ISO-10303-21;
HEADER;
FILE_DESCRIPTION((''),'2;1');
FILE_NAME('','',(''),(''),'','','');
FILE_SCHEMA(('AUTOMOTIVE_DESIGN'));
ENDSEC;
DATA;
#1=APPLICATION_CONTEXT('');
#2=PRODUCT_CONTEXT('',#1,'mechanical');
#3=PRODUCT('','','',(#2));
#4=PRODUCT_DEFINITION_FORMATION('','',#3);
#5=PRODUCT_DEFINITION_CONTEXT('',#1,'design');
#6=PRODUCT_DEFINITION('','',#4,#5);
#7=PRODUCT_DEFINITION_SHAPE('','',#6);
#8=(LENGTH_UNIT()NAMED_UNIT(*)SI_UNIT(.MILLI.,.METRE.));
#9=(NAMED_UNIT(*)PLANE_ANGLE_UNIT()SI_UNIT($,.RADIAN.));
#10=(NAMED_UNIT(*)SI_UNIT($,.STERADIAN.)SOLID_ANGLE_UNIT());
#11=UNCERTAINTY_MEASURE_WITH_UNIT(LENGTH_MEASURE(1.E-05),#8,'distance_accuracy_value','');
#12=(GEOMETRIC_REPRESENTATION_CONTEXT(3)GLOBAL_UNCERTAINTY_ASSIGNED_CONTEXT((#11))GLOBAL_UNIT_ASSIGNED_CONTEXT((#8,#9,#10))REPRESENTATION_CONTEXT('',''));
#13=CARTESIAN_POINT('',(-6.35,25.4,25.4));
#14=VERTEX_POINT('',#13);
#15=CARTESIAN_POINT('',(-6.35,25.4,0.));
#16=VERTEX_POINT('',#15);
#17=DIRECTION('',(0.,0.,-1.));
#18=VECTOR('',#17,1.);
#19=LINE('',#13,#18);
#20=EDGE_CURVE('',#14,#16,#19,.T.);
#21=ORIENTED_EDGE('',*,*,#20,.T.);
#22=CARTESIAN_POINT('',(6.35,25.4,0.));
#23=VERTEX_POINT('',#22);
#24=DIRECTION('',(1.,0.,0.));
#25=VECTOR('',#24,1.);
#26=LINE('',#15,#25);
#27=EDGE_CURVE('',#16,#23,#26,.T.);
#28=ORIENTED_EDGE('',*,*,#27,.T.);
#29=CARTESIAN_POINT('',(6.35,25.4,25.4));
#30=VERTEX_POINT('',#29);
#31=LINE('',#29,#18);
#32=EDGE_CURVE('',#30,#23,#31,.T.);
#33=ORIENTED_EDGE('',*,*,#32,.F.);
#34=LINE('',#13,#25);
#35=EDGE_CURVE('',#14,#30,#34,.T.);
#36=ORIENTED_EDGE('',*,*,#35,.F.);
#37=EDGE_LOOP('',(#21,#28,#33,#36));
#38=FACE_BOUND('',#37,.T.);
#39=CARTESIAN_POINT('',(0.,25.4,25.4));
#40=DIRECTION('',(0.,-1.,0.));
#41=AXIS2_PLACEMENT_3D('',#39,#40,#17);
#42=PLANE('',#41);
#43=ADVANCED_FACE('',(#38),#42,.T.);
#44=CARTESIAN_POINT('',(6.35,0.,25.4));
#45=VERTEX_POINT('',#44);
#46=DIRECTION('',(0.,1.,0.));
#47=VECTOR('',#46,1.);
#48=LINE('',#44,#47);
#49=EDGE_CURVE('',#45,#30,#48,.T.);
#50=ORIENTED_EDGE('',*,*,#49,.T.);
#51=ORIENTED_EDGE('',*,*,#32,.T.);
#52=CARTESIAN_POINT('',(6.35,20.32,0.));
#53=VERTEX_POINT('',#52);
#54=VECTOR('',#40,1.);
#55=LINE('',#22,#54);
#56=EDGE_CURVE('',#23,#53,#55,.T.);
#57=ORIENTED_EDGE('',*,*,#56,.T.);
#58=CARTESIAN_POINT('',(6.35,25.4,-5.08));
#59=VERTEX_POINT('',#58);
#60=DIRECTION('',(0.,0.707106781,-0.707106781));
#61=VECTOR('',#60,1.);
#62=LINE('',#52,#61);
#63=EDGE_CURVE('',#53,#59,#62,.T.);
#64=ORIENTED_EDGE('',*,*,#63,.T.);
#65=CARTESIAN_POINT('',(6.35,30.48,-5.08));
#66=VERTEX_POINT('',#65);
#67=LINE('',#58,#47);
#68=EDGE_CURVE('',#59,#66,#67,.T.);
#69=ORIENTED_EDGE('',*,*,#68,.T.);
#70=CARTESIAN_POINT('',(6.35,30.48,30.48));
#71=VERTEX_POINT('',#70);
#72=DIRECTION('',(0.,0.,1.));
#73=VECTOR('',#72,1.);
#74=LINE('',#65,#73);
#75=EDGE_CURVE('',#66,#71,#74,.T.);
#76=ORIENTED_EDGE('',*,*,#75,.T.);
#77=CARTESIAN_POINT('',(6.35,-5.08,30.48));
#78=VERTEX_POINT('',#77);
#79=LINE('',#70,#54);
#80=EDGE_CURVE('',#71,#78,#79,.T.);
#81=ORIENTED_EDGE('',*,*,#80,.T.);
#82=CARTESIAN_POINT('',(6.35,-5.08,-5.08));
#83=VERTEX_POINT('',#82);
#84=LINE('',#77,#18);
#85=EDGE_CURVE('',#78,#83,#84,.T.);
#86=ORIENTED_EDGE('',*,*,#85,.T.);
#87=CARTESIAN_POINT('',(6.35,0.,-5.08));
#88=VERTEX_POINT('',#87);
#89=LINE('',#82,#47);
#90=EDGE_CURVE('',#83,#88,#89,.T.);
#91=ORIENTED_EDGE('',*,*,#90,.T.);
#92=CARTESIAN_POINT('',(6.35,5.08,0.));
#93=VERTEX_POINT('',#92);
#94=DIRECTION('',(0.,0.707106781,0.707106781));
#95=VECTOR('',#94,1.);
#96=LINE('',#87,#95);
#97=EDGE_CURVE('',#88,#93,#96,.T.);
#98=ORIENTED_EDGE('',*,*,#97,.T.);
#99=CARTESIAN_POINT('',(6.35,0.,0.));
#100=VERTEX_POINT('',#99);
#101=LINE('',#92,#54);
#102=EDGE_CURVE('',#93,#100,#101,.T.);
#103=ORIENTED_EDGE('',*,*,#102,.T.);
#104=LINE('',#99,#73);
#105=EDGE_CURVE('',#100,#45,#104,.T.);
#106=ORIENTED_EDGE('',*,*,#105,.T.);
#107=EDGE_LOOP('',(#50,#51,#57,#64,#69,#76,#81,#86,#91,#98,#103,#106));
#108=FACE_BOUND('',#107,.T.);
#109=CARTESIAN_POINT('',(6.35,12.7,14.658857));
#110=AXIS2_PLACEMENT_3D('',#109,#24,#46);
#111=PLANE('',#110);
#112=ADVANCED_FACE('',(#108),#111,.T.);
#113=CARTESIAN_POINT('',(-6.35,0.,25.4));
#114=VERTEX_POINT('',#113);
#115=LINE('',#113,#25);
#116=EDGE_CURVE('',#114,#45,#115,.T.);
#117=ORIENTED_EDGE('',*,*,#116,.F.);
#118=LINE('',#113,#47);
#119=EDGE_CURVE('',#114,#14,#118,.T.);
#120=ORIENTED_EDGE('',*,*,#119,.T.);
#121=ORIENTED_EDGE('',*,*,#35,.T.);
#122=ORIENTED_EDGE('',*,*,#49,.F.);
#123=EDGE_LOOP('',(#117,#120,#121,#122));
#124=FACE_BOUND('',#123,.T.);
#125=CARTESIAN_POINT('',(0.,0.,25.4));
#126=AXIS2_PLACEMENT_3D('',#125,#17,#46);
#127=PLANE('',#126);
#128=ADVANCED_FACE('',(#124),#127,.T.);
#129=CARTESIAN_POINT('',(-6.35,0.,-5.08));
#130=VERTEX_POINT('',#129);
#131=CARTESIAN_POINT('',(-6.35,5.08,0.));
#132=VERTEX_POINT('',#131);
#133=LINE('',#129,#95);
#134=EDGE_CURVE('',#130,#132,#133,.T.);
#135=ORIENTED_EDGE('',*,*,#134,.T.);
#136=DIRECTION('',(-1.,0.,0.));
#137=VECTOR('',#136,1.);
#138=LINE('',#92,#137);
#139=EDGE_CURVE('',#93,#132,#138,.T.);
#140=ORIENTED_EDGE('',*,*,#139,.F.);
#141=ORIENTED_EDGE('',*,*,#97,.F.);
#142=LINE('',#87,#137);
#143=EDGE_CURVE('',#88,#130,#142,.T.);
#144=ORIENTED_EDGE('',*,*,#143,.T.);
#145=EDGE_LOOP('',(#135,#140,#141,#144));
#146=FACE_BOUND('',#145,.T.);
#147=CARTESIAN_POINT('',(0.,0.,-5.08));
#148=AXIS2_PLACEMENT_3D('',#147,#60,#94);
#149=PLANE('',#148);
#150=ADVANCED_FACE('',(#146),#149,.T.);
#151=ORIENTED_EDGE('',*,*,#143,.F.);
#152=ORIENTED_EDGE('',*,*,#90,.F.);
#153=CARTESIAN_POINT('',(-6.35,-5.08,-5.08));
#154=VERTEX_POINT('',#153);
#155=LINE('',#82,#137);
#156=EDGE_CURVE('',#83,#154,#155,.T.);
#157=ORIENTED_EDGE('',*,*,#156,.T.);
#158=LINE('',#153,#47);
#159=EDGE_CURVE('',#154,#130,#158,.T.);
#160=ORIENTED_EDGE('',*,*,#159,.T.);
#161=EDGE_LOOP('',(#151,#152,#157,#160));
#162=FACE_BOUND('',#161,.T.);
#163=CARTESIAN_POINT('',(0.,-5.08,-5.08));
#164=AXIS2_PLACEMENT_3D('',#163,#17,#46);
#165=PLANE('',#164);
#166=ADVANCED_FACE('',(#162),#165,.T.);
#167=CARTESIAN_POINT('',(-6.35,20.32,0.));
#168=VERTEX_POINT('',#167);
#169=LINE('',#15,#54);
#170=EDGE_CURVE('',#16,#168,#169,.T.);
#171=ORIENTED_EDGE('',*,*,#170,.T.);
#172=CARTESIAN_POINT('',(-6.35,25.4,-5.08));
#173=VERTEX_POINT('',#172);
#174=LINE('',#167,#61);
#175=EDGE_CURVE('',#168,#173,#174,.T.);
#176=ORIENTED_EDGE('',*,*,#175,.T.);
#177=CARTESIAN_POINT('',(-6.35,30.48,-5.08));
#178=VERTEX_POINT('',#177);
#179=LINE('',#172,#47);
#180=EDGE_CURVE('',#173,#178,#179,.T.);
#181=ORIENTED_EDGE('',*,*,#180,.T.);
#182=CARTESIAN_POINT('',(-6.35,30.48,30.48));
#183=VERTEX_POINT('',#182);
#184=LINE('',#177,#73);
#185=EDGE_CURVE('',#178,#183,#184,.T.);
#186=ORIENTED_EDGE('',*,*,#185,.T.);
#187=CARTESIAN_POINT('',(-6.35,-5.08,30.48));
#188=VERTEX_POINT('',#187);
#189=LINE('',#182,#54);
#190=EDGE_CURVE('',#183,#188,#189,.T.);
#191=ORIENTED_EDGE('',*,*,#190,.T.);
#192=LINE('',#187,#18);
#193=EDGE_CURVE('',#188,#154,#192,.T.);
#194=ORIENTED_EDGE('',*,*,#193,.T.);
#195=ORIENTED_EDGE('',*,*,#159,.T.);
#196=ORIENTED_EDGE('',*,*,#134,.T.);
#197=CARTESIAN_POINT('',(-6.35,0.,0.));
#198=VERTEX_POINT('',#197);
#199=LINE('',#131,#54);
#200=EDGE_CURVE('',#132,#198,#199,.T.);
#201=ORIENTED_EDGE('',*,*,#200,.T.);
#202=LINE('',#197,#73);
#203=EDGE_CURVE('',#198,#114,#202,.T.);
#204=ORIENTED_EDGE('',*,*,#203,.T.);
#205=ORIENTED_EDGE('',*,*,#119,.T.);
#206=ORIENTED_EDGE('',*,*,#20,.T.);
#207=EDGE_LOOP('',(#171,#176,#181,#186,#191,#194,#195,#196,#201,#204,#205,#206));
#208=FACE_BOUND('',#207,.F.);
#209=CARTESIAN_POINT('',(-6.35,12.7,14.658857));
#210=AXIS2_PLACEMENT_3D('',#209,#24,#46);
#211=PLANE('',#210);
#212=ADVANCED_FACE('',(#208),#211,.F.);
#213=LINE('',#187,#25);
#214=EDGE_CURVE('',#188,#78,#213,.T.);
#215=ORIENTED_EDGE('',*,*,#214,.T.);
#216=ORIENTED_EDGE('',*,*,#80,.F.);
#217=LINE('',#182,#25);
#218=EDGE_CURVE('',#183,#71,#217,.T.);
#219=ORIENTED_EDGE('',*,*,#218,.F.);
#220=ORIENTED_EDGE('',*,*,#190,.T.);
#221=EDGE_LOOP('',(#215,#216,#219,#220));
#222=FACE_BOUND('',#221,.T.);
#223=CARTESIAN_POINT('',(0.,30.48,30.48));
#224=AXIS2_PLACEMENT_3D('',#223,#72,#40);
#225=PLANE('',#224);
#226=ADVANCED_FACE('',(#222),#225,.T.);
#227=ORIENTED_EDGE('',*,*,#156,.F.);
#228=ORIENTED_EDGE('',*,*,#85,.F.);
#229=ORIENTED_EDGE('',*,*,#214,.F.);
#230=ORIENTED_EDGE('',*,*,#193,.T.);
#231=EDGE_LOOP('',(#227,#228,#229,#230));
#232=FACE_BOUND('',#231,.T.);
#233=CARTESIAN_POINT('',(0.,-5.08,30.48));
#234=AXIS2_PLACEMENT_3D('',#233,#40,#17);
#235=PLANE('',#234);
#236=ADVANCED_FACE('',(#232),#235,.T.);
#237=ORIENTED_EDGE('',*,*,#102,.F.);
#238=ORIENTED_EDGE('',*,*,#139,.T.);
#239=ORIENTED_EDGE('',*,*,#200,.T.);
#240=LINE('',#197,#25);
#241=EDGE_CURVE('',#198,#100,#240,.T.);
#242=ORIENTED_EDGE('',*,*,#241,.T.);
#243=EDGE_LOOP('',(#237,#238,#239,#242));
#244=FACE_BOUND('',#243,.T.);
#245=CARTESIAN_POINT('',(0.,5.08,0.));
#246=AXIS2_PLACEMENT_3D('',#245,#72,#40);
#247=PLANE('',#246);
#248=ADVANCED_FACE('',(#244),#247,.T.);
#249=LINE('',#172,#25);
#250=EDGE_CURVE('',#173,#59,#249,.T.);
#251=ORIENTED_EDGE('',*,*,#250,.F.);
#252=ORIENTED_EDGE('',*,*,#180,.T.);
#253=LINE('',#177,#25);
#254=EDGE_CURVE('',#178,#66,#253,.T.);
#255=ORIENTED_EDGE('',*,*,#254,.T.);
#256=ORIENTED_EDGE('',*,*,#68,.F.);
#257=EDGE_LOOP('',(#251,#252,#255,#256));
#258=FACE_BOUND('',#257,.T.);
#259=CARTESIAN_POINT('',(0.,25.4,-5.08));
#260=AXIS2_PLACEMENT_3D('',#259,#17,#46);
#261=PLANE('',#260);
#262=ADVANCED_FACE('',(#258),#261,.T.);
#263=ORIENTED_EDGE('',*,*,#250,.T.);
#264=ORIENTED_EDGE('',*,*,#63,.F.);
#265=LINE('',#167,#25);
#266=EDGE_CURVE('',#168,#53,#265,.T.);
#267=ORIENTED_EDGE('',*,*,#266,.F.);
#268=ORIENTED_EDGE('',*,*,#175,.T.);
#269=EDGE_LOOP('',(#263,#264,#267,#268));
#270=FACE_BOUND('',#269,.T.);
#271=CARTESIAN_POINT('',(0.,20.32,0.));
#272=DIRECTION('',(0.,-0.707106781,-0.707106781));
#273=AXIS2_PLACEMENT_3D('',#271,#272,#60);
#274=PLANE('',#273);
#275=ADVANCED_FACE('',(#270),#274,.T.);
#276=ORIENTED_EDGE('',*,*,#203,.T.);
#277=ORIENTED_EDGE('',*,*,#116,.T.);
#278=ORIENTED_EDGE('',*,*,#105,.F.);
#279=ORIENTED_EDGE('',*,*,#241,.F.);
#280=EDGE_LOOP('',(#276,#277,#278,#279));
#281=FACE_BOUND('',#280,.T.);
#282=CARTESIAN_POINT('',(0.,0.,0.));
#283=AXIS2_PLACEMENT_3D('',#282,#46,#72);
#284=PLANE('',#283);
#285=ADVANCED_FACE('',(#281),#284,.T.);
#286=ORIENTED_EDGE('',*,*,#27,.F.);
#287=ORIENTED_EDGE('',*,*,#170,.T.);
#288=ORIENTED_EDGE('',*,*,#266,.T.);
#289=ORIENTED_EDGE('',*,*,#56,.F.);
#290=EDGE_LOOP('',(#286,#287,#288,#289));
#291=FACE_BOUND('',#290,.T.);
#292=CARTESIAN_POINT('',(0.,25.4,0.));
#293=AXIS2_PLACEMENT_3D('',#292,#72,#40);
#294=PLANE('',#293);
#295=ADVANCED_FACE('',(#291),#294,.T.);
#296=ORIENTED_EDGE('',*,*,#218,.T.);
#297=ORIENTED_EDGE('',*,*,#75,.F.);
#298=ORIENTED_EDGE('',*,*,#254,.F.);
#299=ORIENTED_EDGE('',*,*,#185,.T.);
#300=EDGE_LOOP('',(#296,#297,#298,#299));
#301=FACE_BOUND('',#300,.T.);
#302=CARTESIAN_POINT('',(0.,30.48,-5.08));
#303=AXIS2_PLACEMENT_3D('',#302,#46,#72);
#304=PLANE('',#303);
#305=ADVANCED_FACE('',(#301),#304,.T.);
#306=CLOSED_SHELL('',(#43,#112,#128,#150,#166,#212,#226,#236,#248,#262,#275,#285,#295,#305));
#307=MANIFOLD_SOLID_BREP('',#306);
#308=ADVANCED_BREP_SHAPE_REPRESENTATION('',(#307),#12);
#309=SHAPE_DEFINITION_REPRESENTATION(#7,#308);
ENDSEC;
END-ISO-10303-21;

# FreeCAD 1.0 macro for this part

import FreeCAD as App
import Part
import Sketcher

V = App.Vector
Q = App.Units.Quantity


def add_polygon(sketch, points):
    """Adds a closed chain of lines whose ends are joined by coincident constraints."""
    first, n = sketch.GeometryCount, len(points)
    for a, b in zip(points, points[1:] + points[:1]):
        sketch.addGeometry(Part.LineSegment(App.Vector(*a, 0), App.Vector(*b, 0)), False)
    for i in range(n):
        sketch.addConstraint(Sketcher.Constraint("Coincident", first + i, 2, first + (i + 1) % n, 1))

doc = App.newDocument("Part")
body = doc.addObject("PartDesign::Body", "Body")

# Sketch on YZ plane
sketch1 = body.newObject("Sketcher::SketchObject", "Sketch")
sketch1.AttachmentSupport = (doc.getObject("YZ_Plane"), [""])
sketch1.MapMode = "FlatFace"
add_polygon(sketch1, [(5, 0), (0, 0), (0, 25), (25, 25), (25, 0), (20, 0), (25, -5), (30, -5), (30, 30), (-5, 30), (-5, -5), (0, -5)])  # lines 0-11
sketch1.addConstraint([
    Sketcher.Constraint("Horizontal", 0),
    Sketcher.Constraint("Vertical", 1),
    Sketcher.Constraint("Horizontal", 2),
    Sketcher.Constraint("Vertical", 3),
    Sketcher.Constraint("Horizontal", 4),
    Sketcher.Constraint("Horizontal", 6),
    Sketcher.Constraint("Vertical", 7),
    Sketcher.Constraint("Horizontal", 8),
    Sketcher.Constraint("Vertical", 9),
    Sketcher.Constraint("Horizontal", 10),
    Sketcher.Constraint("Coincident", 0, 2, -1, 1),
    Sketcher.Constraint("PointOnObject", 3, 2, -1),
    Sketcher.Constraint("PointOnObject", 10, 2, -2),
    Sketcher.Constraint("Perpendicular", 5, 11),
    Sketcher.Constraint("Horizontal", 6, 2, 9, 2),
    Sketcher.Constraint("Vertical", 3, 2, 5, 2),
    Sketcher.Constraint("Equal", 0, 4),
    Sketcher.Constraint("Equal", 4, 6),
    Sketcher.Constraint("Equal", 6, 10),
    Sketcher.Constraint("Equal", 2, 1),
    Sketcher.Constraint("Equal", 8, 7),
    Sketcher.Constraint("DistanceX", 2, 1, 2, 2, Q("1 in")),
    Sketcher.Constraint("DistanceX", 0, 2, 0, 1, Q("0.2 in")),
])
pad1 = body.newObject("PartDesign::Pad", "Pad")
pad1.Profile = sketch1
pad1.Length = Q("0.5 in")
pad1.Midplane = True

doc.recompute()
